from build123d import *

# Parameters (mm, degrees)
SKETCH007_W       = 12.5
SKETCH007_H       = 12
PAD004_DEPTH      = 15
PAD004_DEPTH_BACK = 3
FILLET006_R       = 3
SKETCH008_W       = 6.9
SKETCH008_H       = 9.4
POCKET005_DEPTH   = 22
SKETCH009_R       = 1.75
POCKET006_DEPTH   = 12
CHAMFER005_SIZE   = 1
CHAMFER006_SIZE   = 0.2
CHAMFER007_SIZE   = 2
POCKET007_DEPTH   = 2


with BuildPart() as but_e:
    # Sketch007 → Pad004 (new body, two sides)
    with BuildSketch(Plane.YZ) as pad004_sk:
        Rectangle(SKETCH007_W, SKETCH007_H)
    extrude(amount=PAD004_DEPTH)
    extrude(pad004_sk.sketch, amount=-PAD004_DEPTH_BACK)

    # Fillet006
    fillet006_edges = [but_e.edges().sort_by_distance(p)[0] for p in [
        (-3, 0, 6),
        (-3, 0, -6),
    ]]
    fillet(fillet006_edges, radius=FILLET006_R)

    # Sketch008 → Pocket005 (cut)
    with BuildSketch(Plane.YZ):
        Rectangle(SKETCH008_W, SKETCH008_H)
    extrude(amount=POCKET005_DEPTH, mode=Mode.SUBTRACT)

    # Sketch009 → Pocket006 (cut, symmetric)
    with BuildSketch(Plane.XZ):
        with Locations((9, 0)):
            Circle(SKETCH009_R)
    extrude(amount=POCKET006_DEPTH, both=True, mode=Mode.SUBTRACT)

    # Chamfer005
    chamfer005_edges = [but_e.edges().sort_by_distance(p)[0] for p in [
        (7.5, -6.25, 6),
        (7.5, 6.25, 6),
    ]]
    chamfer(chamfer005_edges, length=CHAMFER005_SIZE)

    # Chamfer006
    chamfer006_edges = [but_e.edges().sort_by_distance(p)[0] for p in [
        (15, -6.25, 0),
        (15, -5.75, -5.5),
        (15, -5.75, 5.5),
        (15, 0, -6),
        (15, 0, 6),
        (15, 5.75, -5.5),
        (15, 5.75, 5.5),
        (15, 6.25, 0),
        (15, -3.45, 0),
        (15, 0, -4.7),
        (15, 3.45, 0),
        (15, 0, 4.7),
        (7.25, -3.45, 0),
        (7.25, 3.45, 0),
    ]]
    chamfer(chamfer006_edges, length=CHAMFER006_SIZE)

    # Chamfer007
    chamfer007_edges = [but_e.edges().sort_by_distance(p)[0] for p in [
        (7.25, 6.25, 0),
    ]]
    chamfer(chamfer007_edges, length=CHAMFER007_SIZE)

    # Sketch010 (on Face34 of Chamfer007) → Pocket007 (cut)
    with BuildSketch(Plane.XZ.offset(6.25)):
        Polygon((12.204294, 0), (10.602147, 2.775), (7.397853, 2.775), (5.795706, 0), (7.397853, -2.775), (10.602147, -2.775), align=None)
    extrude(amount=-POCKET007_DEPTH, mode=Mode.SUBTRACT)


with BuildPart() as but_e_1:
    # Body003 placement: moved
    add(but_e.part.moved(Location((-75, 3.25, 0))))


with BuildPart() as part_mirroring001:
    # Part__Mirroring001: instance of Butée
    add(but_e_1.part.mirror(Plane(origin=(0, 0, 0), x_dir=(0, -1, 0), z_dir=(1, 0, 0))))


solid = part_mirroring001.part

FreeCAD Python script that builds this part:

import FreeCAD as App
import Part
import Sketcher

V = App.Vector
Q = App.Units.Quantity


def edges_at(feature, points):
    """Names of the edges that pass closest to the given points."""
    edges = feature.Shape.Edges
    near = lambda p: min(range(len(edges)), key=lambda i: edges[i].distToShape(Part.Vertex(*p))[0])
    return sorted({f"Edge{near(p) + 1}" for p in points})


def add_polygon(sketch, points):
    """Adds a closed chain of lines whose ends are joined by coincident constraints."""
    first, n = sketch.GeometryCount, len(points)
    for a, b in zip(points, points[1:] + points[:1]):
        sketch.addGeometry(Part.LineSegment(App.Vector(*a, 0), App.Vector(*b, 0)), False)
    for i in range(n):
        sketch.addConstraint(Sketcher.Constraint("Coincident", first + i, 2, first + (i + 1) % n, 1))

doc = App.newDocument("Part")
body = doc.addObject("PartDesign::Body", "Body")

# Sketch on YZ plane
sketch1 = body.newObject("Sketcher::SketchObject", "Sketch")
sketch1.AttachmentSupport = (doc.getObject("YZ_Plane"), [""])
sketch1.MapMode = "FlatFace"
add_polygon(sketch1, [(-6, 6), (-6, -6), (6, -6), (6, 6)])  # lines 0-3
sketch1.addConstraint([
    Sketcher.Constraint("Vertical", 0),
    Sketcher.Constraint("Horizontal", 1),
    Sketcher.Constraint("Vertical", 2),
    Sketcher.Constraint("Horizontal", 3),
    Sketcher.Constraint("Symmetric", 0, 2, 2, 2, -1, 1),
    Sketcher.Constraint("DistanceY", 0, 2, 0, 1, Q("12 mm")),
    Sketcher.Constraint("DistanceX", 1, 1, 1, 2, Q("12.5 mm")),
])
pad1 = body.newObject("PartDesign::Pad", "Pad")
pad1.Profile = sketch1
pad1.Type = "TwoLengths"
pad1.Length = 15
pad1.Length2 = 3
doc.recompute()

fillet = body.newObject("PartDesign::Fillet", "Fillet")
fillet.Base = (pad1, edges_at(pad1, [(-3, 0, 6), (-3, 0, -6)]))
fillet.Radius = 3

# Sketch on YZ plane
sketch2 = body.newObject("Sketcher::SketchObject", "Sketch001")
sketch2.AttachmentSupport = (doc.getObject("YZ_Plane"), [""])
sketch2.MapMode = "FlatFace"
add_polygon(sketch2, [(-3, 5), (-3, -5), (3, -5), (3, 5)])  # lines 0-3
sketch2.addConstraint([
    Sketcher.Constraint("Vertical", 0),
    Sketcher.Constraint("Horizontal", 1),
    Sketcher.Constraint("Vertical", 2),
    Sketcher.Constraint("Horizontal", 3),
    Sketcher.Constraint("Symmetric", 0, 2, 2, 2, -1, 1),
    Sketcher.Constraint("DistanceX", 1, 1, 1, 2, Q("6.9 mm")),
    Sketcher.Constraint("DistanceY", 0, 2, 0, 1, Q("9.4 mm")),
])
pocket1 = body.newObject("PartDesign::Pocket", "Pocket")
pocket1.Profile = sketch2
pocket1.Length = 22
pocket1.Reversed = True

# Sketch on XZ plane
sketch3 = body.newObject("Sketcher::SketchObject", "Sketch002")
sketch3.AttachmentSupport = (doc.getObject("XZ_Plane"), [""])
sketch3.MapMode = "FlatFace"
sketch3.addGeometry(Part.Circle(V(9, 0, 0), V(0, 0, 1), 1.8), False)
sketch3.addConstraint([
    Sketcher.Constraint("PointOnObject", 0, 3, -1),
    Sketcher.Constraint("Diameter", 0, Q("3.5 mm")),
    Sketcher.Constraint("DistanceX", -1, 1, 0, 3, Q("9 mm")),
])
pocket2 = body.newObject("PartDesign::Pocket", "Pocket001")
pocket2.Profile = sketch3
pocket2.Length = 24
pocket2.Midplane = True
doc.recompute()

chamfer = body.newObject("PartDesign::Chamfer", "Chamfer")
chamfer.Base = (pocket2, edges_at(pocket2, [(7.5, -6.25, 6), (7.5, 6.25, 6)]))
chamfer.Size = 1
doc.recompute()

chamfer2 = body.newObject("PartDesign::Chamfer", "Chamfer001")
chamfer2.Base = (chamfer, edges_at(chamfer, [
    (15, -6.25, 0),
    (15, -5.75, -5.5),
    (15, -5.75, 5.5),
    (15, 0, -6),
    (15, 0, 6),
    (15, 5.75, -5.5),
    (15, 5.75, 5.5),
    (15, 6.25, 0),
    (15, -3.45, 0),
    (15, 0, -4.7),
    (15, 3.45, 0),
    (15, 0, 4.7),
    (7.25, -3.45, 0),
    (7.25, 3.45, 0),
]))
chamfer2.Size = 0.2
doc.recompute()

chamfer3 = body.newObject("PartDesign::Chamfer", "Chamfer002")
chamfer3.Base = (chamfer2, edges_at(chamfer2, [(7.25, 6.25, 0)]))
chamfer3.Size = 2

# Sketch on XZ plane
sketch4 = body.newObject("Sketcher::SketchObject", "Sketch003")
sketch4.AttachmentSupport = (doc.getObject("XZ_Plane"), [""])
sketch4.MapMode = "FlatFace"
sketch4.AttachmentOffset = App.Placement(V(0, 0, 6.25), App.Rotation())
add_polygon(sketch4, [(12.2, 0), (10.6, 2.8), (7.4, 2.8), (5.8, 0), (7.4, -2.8), (10.6, -2.8)])  # lines 0-5
sketch4.addConstraint([
    Sketcher.Constraint("Horizontal", 1),
    Sketcher.Constraint("Horizontal", 4),
    Sketcher.Constraint("Symmetric", 1, 2, 3, 2, -1),
    Sketcher.Constraint("PointOnObject", 2, 2, -1),
    Sketcher.Constraint("PointOnObject", 5, 2, -1),
    Sketcher.Constraint("Parallel", 0, 3),
    Sketcher.Constraint("Parallel", 2, 5),
    Sketcher.Constraint("Angle", 0, Q("120 deg")),
    Sketcher.Constraint("DistanceY", 3, 2, 1, 2, Q("5.55 mm")),
    Sketcher.Constraint("DistanceX", 1, 2, 1, 1, Q("3.204294 mm")),
    Sketcher.Constraint("DistanceX", -1, 1, 0, 2, Q("10.602147 mm")),
])
pocket3 = body.newObject("PartDesign::Pocket", "Pocket002")
pocket3.Profile = sketch4
pocket3.Length = 2
body2 = doc.addObject("PartDesign::Body", "Body001")
doc.recompute()

body.Placement = App.Placement(V(-75, 3.25, 0), App.Rotation(V(0, 0, 1), 0))
boolean = body2.newObject("PartDesign::Boolean", "Boolean")
boolean.Type = "Fuse"
boolean.addObjects([body])
body3 = doc.addObject("PartDesign::Body", "Body002")
doc.recompute()

mirroring = doc.addObject("Part::Mirroring", "Mirroring")
mirroring.Source = body2
mirroring.Base = V(0, 0, 0)
mirroring.Normal = V(1, 0, 0)
body3.BaseFeature = mirroring
doc.recompute()
body2.Visibility = False
mirroring.Visibility = False

doc.recompute()
